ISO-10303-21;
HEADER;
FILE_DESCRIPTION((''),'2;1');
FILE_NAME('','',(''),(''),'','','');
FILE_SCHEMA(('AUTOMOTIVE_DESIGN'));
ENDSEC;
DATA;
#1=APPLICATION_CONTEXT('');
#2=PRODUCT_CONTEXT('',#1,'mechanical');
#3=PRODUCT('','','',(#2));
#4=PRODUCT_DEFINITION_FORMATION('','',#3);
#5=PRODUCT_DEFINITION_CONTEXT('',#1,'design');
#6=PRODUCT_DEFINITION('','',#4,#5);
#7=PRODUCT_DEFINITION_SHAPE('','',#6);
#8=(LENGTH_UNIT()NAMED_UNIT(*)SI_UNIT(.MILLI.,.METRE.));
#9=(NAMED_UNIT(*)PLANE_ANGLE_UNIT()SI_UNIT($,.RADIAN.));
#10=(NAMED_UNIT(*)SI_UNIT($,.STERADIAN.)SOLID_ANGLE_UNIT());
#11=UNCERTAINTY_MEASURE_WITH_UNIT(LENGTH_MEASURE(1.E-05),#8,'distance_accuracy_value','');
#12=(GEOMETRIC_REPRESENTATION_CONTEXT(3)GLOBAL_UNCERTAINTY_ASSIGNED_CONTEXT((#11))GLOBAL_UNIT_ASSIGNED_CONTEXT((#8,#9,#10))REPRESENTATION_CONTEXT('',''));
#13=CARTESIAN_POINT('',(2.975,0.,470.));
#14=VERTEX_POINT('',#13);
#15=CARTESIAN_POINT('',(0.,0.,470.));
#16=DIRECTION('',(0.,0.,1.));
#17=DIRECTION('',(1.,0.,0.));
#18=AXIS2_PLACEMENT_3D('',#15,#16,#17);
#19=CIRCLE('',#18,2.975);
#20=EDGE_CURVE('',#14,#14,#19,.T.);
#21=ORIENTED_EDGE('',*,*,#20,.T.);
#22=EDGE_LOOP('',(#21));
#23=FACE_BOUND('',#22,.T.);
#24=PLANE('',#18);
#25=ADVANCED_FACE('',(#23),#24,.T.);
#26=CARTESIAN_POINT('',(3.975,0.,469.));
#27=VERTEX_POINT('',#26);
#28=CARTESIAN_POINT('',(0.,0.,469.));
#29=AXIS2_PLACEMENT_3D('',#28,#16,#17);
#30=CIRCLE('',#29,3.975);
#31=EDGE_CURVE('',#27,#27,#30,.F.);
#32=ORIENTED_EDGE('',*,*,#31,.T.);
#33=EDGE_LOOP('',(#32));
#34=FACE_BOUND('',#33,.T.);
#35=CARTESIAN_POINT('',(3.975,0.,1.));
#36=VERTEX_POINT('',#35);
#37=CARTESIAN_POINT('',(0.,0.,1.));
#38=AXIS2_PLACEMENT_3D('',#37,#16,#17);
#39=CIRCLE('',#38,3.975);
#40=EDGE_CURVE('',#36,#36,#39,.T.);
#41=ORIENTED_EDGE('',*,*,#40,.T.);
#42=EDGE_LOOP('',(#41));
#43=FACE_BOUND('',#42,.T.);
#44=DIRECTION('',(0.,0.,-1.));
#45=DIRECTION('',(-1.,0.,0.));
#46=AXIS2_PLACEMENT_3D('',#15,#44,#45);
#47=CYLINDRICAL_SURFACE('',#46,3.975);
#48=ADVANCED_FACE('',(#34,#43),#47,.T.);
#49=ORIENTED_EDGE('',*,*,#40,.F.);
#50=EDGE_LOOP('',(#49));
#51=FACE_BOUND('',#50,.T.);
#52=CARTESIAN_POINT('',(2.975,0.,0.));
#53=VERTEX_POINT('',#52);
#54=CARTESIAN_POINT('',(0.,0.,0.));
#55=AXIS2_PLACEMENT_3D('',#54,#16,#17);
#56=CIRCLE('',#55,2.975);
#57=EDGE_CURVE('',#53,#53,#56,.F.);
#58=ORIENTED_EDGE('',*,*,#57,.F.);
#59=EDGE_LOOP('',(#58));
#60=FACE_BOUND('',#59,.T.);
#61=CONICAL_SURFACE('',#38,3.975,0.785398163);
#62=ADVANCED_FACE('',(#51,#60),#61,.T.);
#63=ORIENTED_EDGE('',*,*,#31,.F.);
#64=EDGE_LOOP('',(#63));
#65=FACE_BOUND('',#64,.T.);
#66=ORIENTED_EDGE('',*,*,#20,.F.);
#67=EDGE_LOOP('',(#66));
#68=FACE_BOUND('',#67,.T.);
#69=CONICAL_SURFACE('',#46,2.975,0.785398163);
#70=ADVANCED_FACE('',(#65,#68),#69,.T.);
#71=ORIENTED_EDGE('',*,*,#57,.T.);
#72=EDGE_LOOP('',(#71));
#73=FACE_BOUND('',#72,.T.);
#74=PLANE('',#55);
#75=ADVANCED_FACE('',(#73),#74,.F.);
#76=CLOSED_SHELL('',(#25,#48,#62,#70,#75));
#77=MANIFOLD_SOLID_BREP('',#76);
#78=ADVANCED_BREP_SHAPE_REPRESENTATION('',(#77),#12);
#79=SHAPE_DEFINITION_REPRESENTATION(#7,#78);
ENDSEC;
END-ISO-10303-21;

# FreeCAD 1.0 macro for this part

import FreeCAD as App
import Part
import Sketcher

V = App.Vector


def edges_at(feature, points):
    """Names of the edges that pass closest to the given points."""
    edges = feature.Shape.Edges
    near = lambda p: min(range(len(edges)), key=lambda i: edges[i].distToShape(Part.Vertex(*p))[0])
    return sorted({f"Edge{near(p) + 1}" for p in points})

doc = App.newDocument("Part")
params = doc.addObject("Spreadsheet::Sheet", "Params")
for row, (alias, value) in enumerate([
    ("sketch1_diameter", "7.95 mm"),
    ("pad1_length", "470 mm"),
    ("chamfer_size", "1 mm"),
], start=1):
    params.set(f"A{row}", alias)
    params.set(f"B{row}", "=" + value)
    params.setAlias(f"B{row}", alias)

body = doc.addObject("PartDesign::Body", "Body")

# Sketch on XY plane
sketch1 = body.newObject("Sketcher::SketchObject", "Sketch")
sketch1.AttachmentSupport = (doc.getObject("XY_Plane"), [""])
sketch1.MapMode = "FlatFace"
sketch1.addGeometry(Part.Circle(V(0, 0, 0), V(0, 0, 1), 4), False)
sketch1.addConstraint([
    Sketcher.Constraint("Coincident", 0, 3, -1, 1),
    Sketcher.Constraint("Diameter", 0, 7.95),
])
sketch1.setExpression("Constraints[1]", "Params.sketch1_diameter")
pad1 = body.newObject("PartDesign::Pad", "Pad")
pad1.Profile = sketch1
pad1.setExpression("Length", "Params.pad1_length")
doc.recompute()

chamfer = body.newObject("PartDesign::Chamfer", "Chamfer")
chamfer.Base = (pad1, edges_at(pad1, [(-3.975, 0, 0), (-3.975, 0, 470)]))
chamfer.setExpression("Size", "Params.chamfer_size")

doc.recompute()
